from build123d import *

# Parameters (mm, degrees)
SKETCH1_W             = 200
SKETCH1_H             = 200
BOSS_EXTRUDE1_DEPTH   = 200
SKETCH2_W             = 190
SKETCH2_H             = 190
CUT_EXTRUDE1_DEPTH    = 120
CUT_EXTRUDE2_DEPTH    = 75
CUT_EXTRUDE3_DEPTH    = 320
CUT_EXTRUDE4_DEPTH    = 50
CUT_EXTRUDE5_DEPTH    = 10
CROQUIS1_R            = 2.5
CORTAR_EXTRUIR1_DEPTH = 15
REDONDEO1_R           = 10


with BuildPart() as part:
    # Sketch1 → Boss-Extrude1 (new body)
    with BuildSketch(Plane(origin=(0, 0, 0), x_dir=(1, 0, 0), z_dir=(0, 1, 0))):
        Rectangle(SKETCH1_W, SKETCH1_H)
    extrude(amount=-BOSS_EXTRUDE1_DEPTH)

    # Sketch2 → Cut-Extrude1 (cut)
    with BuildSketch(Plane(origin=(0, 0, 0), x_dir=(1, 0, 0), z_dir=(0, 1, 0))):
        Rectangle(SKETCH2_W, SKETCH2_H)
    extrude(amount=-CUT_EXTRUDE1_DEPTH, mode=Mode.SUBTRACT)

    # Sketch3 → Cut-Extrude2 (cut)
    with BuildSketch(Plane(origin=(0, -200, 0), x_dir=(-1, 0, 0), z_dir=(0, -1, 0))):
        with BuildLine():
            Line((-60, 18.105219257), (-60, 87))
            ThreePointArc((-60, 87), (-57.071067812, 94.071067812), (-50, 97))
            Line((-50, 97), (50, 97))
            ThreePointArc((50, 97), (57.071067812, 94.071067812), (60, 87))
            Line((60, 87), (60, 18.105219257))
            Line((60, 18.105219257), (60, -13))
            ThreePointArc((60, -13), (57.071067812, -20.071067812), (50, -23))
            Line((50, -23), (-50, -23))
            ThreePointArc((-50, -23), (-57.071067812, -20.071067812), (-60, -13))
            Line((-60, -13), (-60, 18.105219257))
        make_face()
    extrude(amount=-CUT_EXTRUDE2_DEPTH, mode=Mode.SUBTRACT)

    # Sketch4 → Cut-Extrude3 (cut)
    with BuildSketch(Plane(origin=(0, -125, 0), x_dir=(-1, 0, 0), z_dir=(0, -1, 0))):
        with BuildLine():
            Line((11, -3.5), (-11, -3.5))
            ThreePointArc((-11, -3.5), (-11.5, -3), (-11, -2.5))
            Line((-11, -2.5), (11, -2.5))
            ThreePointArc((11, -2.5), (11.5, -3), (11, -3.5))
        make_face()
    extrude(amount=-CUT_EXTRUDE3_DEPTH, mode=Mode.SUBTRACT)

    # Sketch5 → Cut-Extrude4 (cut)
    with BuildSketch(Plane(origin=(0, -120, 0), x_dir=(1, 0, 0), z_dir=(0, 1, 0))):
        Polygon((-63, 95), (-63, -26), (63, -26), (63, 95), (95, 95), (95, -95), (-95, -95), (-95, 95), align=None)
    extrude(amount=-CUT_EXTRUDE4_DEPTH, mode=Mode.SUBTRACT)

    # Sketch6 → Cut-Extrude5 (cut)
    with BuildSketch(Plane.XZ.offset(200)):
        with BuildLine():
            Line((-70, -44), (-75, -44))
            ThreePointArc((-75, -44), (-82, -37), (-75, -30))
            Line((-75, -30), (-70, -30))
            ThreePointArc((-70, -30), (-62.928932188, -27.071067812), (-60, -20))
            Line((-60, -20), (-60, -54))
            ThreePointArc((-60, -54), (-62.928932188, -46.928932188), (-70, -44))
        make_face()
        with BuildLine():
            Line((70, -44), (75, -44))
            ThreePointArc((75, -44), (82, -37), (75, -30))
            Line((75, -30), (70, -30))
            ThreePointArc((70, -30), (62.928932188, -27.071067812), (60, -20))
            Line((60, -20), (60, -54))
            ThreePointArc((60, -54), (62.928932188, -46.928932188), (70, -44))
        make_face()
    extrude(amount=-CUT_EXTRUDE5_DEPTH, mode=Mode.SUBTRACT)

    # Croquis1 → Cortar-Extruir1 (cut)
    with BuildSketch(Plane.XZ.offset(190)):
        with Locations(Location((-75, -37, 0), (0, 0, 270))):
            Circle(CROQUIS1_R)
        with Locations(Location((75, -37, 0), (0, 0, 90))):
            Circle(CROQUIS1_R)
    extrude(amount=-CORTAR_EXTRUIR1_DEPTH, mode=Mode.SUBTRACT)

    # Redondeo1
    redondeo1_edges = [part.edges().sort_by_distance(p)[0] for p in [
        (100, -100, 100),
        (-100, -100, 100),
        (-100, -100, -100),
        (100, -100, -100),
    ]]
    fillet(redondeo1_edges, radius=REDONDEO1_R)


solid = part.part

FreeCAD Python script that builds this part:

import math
import FreeCAD as App
import Part
import Sketcher


def edges_at(feature, points):
    """Names of the edges that pass closest to the given points."""
    edges = feature.Shape.Edges
    near = lambda p: min(range(len(edges)), key=lambda i: edges[i].distToShape(Part.Vertex(*p))[0])
    return sorted({f"Edge{near(p) + 1}" for p in points})

doc = App.newDocument("Part")
body = doc.addObject("PartDesign::Body", "Body")

# Sketch on XZ plane
sketch1 = body.newObject("Sketcher::SketchObject", "Sketch")
sketch1.AttachmentSupport = (doc.getObject("XZ_Plane"), [""])
sketch1.MapMode = "FlatFace"
sketch1.addGeometry(Part.LineSegment(App.Vector(-100, -100, 0), App.Vector(-100, 100, 0)), False)
sketch1.addGeometry(Part.LineSegment(App.Vector(-100, 100, 0), App.Vector(100, 100, 0)), False)
sketch1.addGeometry(Part.LineSegment(App.Vector(100, 100, 0), App.Vector(100, -100, 0)), False)
sketch1.addGeometry(Part.LineSegment(App.Vector(100, -100, 0), App.Vector(-100, -100, 0)), False)
sketch1.addConstraint(Sketcher.Constraint("Coincident", 0, 2, 1, 1))
sketch1.addConstraint(Sketcher.Constraint("Coincident", 1, 2, 2, 1))
sketch1.addConstraint(Sketcher.Constraint("Coincident", 2, 2, 3, 1))
sketch1.addConstraint(Sketcher.Constraint("Coincident", 3, 2, 0, 1))
sketch1.addConstraint(Sketcher.Constraint("Vertical", 0))
sketch1.addConstraint(Sketcher.Constraint("Horizontal", 1))
sketch1.addConstraint(Sketcher.Constraint("Vertical", 2))
sketch1.addConstraint(Sketcher.Constraint("Horizontal", 3))
sketch1.addConstraint(Sketcher.Constraint("Symmetric", 0, 2, 2, 2, -1, 1))
sketch1.addConstraint(Sketcher.Constraint("Equal", 3, 0))
sketch1.addConstraint(Sketcher.Constraint("DistanceX", 1, 1, 1, 2, 200.0))
pad1 = body.newObject("PartDesign::Pad", "Pad")
pad1.Profile = sketch1
pad1.Length = 200

# Sketch on XZ plane
sketch2 = body.newObject("Sketcher::SketchObject", "Sketch001")
sketch2.AttachmentSupport = (doc.getObject("XZ_Plane"), [""])
sketch2.MapMode = "FlatFace"
sketch2.addGeometry(Part.LineSegment(App.Vector(-95, -95, 0), App.Vector(-95, 95, 0)), False)
sketch2.addGeometry(Part.LineSegment(App.Vector(-95, 95, 0), App.Vector(95, 95, 0)), False)
sketch2.addGeometry(Part.LineSegment(App.Vector(95, 95, 0), App.Vector(95, -95, 0)), False)
sketch2.addGeometry(Part.LineSegment(App.Vector(95, -95, 0), App.Vector(-95, -95, 0)), False)
sketch2.addConstraint(Sketcher.Constraint("Coincident", 0, 2, 1, 1))
sketch2.addConstraint(Sketcher.Constraint("Coincident", 1, 2, 2, 1))
sketch2.addConstraint(Sketcher.Constraint("Coincident", 2, 2, 3, 1))
sketch2.addConstraint(Sketcher.Constraint("Coincident", 3, 2, 0, 1))
sketch2.addConstraint(Sketcher.Constraint("Vertical", 0))
sketch2.addConstraint(Sketcher.Constraint("Horizontal", 1))
sketch2.addConstraint(Sketcher.Constraint("Vertical", 2))
sketch2.addConstraint(Sketcher.Constraint("Horizontal", 3))
sketch2.addConstraint(Sketcher.Constraint("Symmetric", 0, 2, 2, 2, -1, 1))
sketch2.addConstraint(Sketcher.Constraint("Equal", 3, 0))
sketch2.addConstraint(Sketcher.Constraint("DistanceX", 1, 1, 1, 2, 190.0))
pocket1 = body.newObject("PartDesign::Pocket", "Pocket")
pocket1.Profile = sketch2
pocket1.Length = 120
pocket1.Reversed = True

# Sketch on XZ plane
sketch3 = body.newObject("Sketcher::SketchObject", "Sketch002")
sketch3.AttachmentSupport = (doc.getObject("XZ_Plane"), [""])
sketch3.MapMode = "FlatFace"
sketch3.AttachmentOffset = App.Placement(App.Vector(0, 0, 200), App.Rotation())
sketch3.addGeometry(Part.ArcOfCircle(Part.Circle(App.Vector(50, -87, 0), App.Vector(0, 0, 1), 10), math.radians(-90), math.radians(0)), False)
sketch3.addGeometry(Part.LineSegment(App.Vector(60, -87, 0), App.Vector(60, 13, 0)), False)
sketch3.addGeometry(Part.ArcOfCircle(Part.Circle(App.Vector(50, 13, 0), App.Vector(0, 0, 1), 10), math.radians(0), math.radians(90)), False)
sketch3.addGeometry(Part.LineSegment(App.Vector(50, 23, 0), App.Vector(-50, 23, 0)), False)
sketch3.addGeometry(Part.ArcOfCircle(Part.Circle(App.Vector(-50, 13, 0), App.Vector(0, 0, 1), 10), math.radians(90), math.radians(180)), False)
sketch3.addGeometry(Part.LineSegment(App.Vector(-60, 13, 0), App.Vector(-60, -87, 0)), False)
sketch3.addGeometry(Part.ArcOfCircle(Part.Circle(App.Vector(-50, -87, 0), App.Vector(0, 0, 1), 10), math.radians(180), math.radians(270)), False)
sketch3.addGeometry(Part.LineSegment(App.Vector(-50, -97, 0), App.Vector(50, -97, 0)), False)
sketch3.addConstraint(Sketcher.Constraint("Tangent", 0, 2, 1, 1))
sketch3.addConstraint(Sketcher.Constraint("Tangent", 1, 2, 2, 1))
sketch3.addConstraint(Sketcher.Constraint("Tangent", 2, 2, 3, 1))
sketch3.addConstraint(Sketcher.Constraint("Tangent", 3, 2, 4, 1))
sketch3.addConstraint(Sketcher.Constraint("Tangent", 4, 2, 5, 1))
sketch3.addConstraint(Sketcher.Constraint("Tangent", 5, 2, 6, 1))
sketch3.addConstraint(Sketcher.Constraint("Tangent", 6, 2, 7, 1))
sketch3.addConstraint(Sketcher.Constraint("Tangent", 7, 2, 0, 1))
sketch3.addConstraint(Sketcher.Constraint("Vertical", 1))
sketch3.addConstraint(Sketcher.Constraint("Horizontal", 3))
sketch3.addConstraint(Sketcher.Constraint("Vertical", 5))
sketch3.addConstraint(Sketcher.Constraint("Horizontal", 7))
sketch3.addConstraint(Sketcher.Constraint("Equal", 0, 2))
sketch3.addConstraint(Sketcher.Constraint("Equal", 2, 4))
sketch3.addConstraint(Sketcher.Constraint("Equal", 4, 6))
sketch3.addConstraint(Sketcher.Constraint("Equal", 7, 1))
sketch3.addConstraint(Sketcher.Constraint("Radius", 0, 10.0))
sketch3.addConstraint(Sketcher.Constraint("DistanceX", 3, 2, 3, 1, 100.0))
sketch3.addConstraint(Sketcher.Constraint("DistanceX", -1, 1, 0, 3, 50.0))
sketch3.addConstraint(Sketcher.Constraint("DistanceY", 0, 3, -1, 1, 87.0))
pocket2 = body.newObject("PartDesign::Pocket", "Pocket001")
pocket2.Profile = sketch3
pocket2.Length = 75

# Sketch on XZ plane
sketch4 = body.newObject("Sketcher::SketchObject", "Sketch003")
sketch4.AttachmentSupport = (doc.getObject("XZ_Plane"), [""])
sketch4.MapMode = "FlatFace"
sketch4.AttachmentOffset = App.Placement(App.Vector(0, 0, 125), App.Rotation())
sketch4.addGeometry(Part.LineSegment(App.Vector(11, 3.5, 0), App.Vector(-11, 3.5, 0)), False)
sketch4.addGeometry(Part.ArcOfCircle(Part.Circle(App.Vector(-11, 3, 0), App.Vector(0, 0, 1), 0.5), math.radians(90), math.radians(270)), False)
sketch4.addGeometry(Part.LineSegment(App.Vector(-11, 2.5, 0), App.Vector(11, 2.5, 0)), False)
sketch4.addGeometry(Part.ArcOfCircle(Part.Circle(App.Vector(11, 3, 0), App.Vector(0, 0, 1), 0.5), math.radians(-90), math.radians(90)), False)
sketch4.addConstraint(Sketcher.Constraint("Tangent", 0, 2, 1, 1))
sketch4.addConstraint(Sketcher.Constraint("Tangent", 1, 2, 2, 1))
sketch4.addConstraint(Sketcher.Constraint("Tangent", 2, 2, 3, 1))
sketch4.addConstraint(Sketcher.Constraint("Tangent", 3, 2, 0, 1))
sketch4.addConstraint(Sketcher.Constraint("Horizontal", 0))
sketch4.addConstraint(Sketcher.Constraint("Horizontal", 2))
sketch4.addConstraint(Sketcher.Constraint("Radius", 1, 0.5))
sketch4.addConstraint(Sketcher.Constraint("DistanceX", 0, 2, 0, 1, 22.0))
sketch4.addConstraint(Sketcher.Constraint("DistanceX", 1, 3, -1, 1, 11.0))
sketch4.addConstraint(Sketcher.Constraint("DistanceY", -1, 1, 1, 3, 3.0))
pocket3 = body.newObject("PartDesign::Pocket", "Pocket002")
pocket3.Profile = sketch4
pocket3.Length = 320

# Sketch on XZ plane
sketch5 = body.newObject("Sketcher::SketchObject", "Sketch004")
sketch5.AttachmentSupport = (doc.getObject("XZ_Plane"), [""])
sketch5.MapMode = "FlatFace"
sketch5.AttachmentOffset = App.Placement(App.Vector(0, 0, 120), App.Rotation())
sketch5.addGeometry(Part.LineSegment(App.Vector(-63, 26, 0), App.Vector(-63, -95, 0)), False)
sketch5.addGeometry(Part.LineSegment(App.Vector(-63, -95, 0), App.Vector(-95, -95, 0)), False)
sketch5.addGeometry(Part.LineSegment(App.Vector(-95, -95, 0), App.Vector(-95, 95, 0)), False)
sketch5.addGeometry(Part.LineSegment(App.Vector(-95, 95, 0), App.Vector(95, 95, 0)), False)
sketch5.addGeometry(Part.LineSegment(App.Vector(95, 95, 0), App.Vector(95, -95, 0)), False)
sketch5.addGeometry(Part.LineSegment(App.Vector(95, -95, 0), App.Vector(63, -95, 0)), False)
sketch5.addGeometry(Part.LineSegment(App.Vector(63, -95, 0), App.Vector(63, 26, 0)), False)
sketch5.addGeometry(Part.LineSegment(App.Vector(63, 26, 0), App.Vector(-63, 26, 0)), False)
sketch5.addConstraint(Sketcher.Constraint("Coincident", 0, 2, 1, 1))
sketch5.addConstraint(Sketcher.Constraint("Coincident", 1, 2, 2, 1))
sketch5.addConstraint(Sketcher.Constraint("Coincident", 2, 2, 3, 1))
sketch5.addConstraint(Sketcher.Constraint("Coincident", 3, 2, 4, 1))
sketch5.addConstraint(Sketcher.Constraint("Coincident", 4, 2, 5, 1))
sketch5.addConstraint(Sketcher.Constraint("Coincident", 5, 2, 6, 1))
sketch5.addConstraint(Sketcher.Constraint("Coincident", 6, 2, 7, 1))
sketch5.addConstraint(Sketcher.Constraint("Coincident", 7, 2, 0, 1))
sketch5.addConstraint(Sketcher.Constraint("Vertical", 0))
sketch5.addConstraint(Sketcher.Constraint("Horizontal", 1))
sketch5.addConstraint(Sketcher.Constraint("Vertical", 2))
sketch5.addConstraint(Sketcher.Constraint("Horizontal", 3))
sketch5.addConstraint(Sketcher.Constraint("Vertical", 4))
sketch5.addConstraint(Sketcher.Constraint("Horizontal", 5))
sketch5.addConstraint(Sketcher.Constraint("Vertical", 6))
sketch5.addConstraint(Sketcher.Constraint("Horizontal", 7))
sketch5.addConstraint(Sketcher.Constraint("Symmetric", 1, 2, 3, 2, -1, 1))
sketch5.addConstraint(Sketcher.Constraint("Symmetric", 0, 2, 5, 2, -2))
sketch5.addConstraint(Sketcher.Constraint("Equal", 3, 2))
sketch5.addConstraint(Sketcher.Constraint("DistanceX", 1, 2, 1, 1, 32.0))
sketch5.addConstraint(Sketcher.Constraint("DistanceX", 3, 1, 3, 2, 190.0))
sketch5.addConstraint(Sketcher.Constraint("DistanceY", 0, 2, 0, 1, 121.0))
pocket4 = body.newObject("PartDesign::Pocket", "Pocket003")
pocket4.Profile = sketch5
pocket4.Length = 50
pocket4.Reversed = True

# Sketch on XZ plane
sketch6 = body.newObject("Sketcher::SketchObject", "Sketch005")
sketch6.AttachmentSupport = (doc.getObject("XZ_Plane"), [""])
sketch6.MapMode = "FlatFace"
sketch6.AttachmentOffset = App.Placement(App.Vector(0, 0, 200), App.Rotation())
sketch6.addGeometry(Part.LineSegment(App.Vector(-75, -44, 0), App.Vector(-70, -44, 0)), False)
sketch6.addGeometry(Part.ArcOfCircle(Part.Circle(App.Vector(-70, -54, 0), App.Vector(0, 0, 1), 10), math.radians(0), math.radians(90)), False)
sketch6.addGeometry(Part.LineSegment(App.Vector(-60, -54, 0), App.Vector(-60, -20, 0)), False)
sketch6.addGeometry(Part.ArcOfCircle(Part.Circle(App.Vector(-70, -20, 0), App.Vector(0, 0, 1), 10), math.radians(-90), math.radians(0)), False)
sketch6.addGeometry(Part.LineSegment(App.Vector(-70, -30, 0), App.Vector(-75, -30, 0)), False)
sketch6.addGeometry(Part.ArcOfCircle(Part.Circle(App.Vector(-75, -37, 0), App.Vector(0, 0, 1), 7), math.radians(90), math.radians(270)), False)
sketch6.addGeometry(Part.LineSegment(App.Vector(70, -44, 0), App.Vector(75, -44, 0)), False)
sketch6.addGeometry(Part.ArcOfCircle(Part.Circle(App.Vector(75, -37, 0), App.Vector(0, 0, 1), 7), math.radians(-90), math.radians(90)), False)
sketch6.addGeometry(Part.LineSegment(App.Vector(75, -30, 0), App.Vector(70, -30, 0)), False)
sketch6.addGeometry(Part.ArcOfCircle(Part.Circle(App.Vector(70, -20, 0), App.Vector(0, 0, 1), 10), math.radians(180), math.radians(270)), False)
sketch6.addGeometry(Part.LineSegment(App.Vector(60, -20, 0), App.Vector(60, -54, 0)), False)
sketch6.addGeometry(Part.ArcOfCircle(Part.Circle(App.Vector(70, -54, 0), App.Vector(0, 0, 1), 10), math.radians(90), math.radians(180)), False)
sketch6.addConstraint(Sketcher.Constraint("Tangent", 0, 2, 1, 2))
sketch6.addConstraint(Sketcher.Constraint("Tangent", 1, 1, 2, 1))
sketch6.addConstraint(Sketcher.Constraint("Tangent", 2, 2, 3, 2))
sketch6.addConstraint(Sketcher.Constraint("Tangent", 3, 1, 4, 1))
sketch6.addConstraint(Sketcher.Constraint("Tangent", 4, 2, 5, 1))
sketch6.addConstraint(Sketcher.Constraint("Tangent", 5, 2, 0, 1))
sketch6.addConstraint(Sketcher.Constraint("Tangent", 6, 2, 7, 1))
sketch6.addConstraint(Sketcher.Constraint("Tangent", 7, 2, 8, 1))
sketch6.addConstraint(Sketcher.Constraint("Tangent", 8, 2, 9, 2))
sketch6.addConstraint(Sketcher.Constraint("Tangent", 9, 1, 10, 1))
sketch6.addConstraint(Sketcher.Constraint("Tangent", 10, 2, 11, 2))
sketch6.addConstraint(Sketcher.Constraint("Tangent", 11, 1, 6, 1))
sketch6.addConstraint(Sketcher.Constraint("Horizontal", 0))
sketch6.addConstraint(Sketcher.Constraint("Vertical", 2))
sketch6.addConstraint(Sketcher.Constraint("Horizontal", 4))
sketch6.addConstraint(Sketcher.Constraint("Horizontal", 6))
sketch6.addConstraint(Sketcher.Constraint("Horizontal", 8))
sketch6.addConstraint(Sketcher.Constraint("Vertical", 10))
sketch6.addConstraint(Sketcher.Constraint("Equal", 1, 3))
sketch6.addConstraint(Sketcher.Constraint("Equal", 5, 7))
sketch6.addConstraint(Sketcher.Constraint("Equal", 3, 9))
sketch6.addConstraint(Sketcher.Constraint("Equal", 9, 11))
sketch6.addConstraint(Sketcher.Constraint("Symmetric", 5, 3, 7, 3, -2))
sketch6.addConstraint(Sketcher.Constraint("Equal", 4, 6))
sketch6.addConstraint(Sketcher.Constraint("Radius", 1, 10.0))
sketch6.addConstraint(Sketcher.Constraint("Radius", 5, 7.0))
sketch6.addConstraint(Sketcher.Constraint("DistanceX", 0, 1, 0, 2, 5.0))
sketch6.addConstraint(Sketcher.Constraint("DistanceX", 1, 3, -1, 1, 70.0))
sketch6.addConstraint(Sketcher.Constraint("DistanceY", 1, 3, -1, 1, 54.0))
pocket5 = body.newObject("PartDesign::Pocket", "Pocket004")
pocket5.Profile = sketch6
pocket5.Length = 10

# Sketch on XZ plane
sketch7 = body.newObject("Sketcher::SketchObject", "Sketch006")
sketch7.AttachmentSupport = (doc.getObject("XZ_Plane"), [""])
sketch7.MapMode = "FlatFace"
sketch7.AttachmentOffset = App.Placement(App.Vector(0, 0, 190), App.Rotation())
sketch7.addGeometry(Part.Circle(App.Vector(-75, -37, 0), App.Vector(0, 0, 1), 2.5), False)
sketch7.addGeometry(Part.Circle(App.Vector(75, -37, 0), App.Vector(0, 0, 1), 2.5), False)
sketch7.addConstraint(Sketcher.Constraint("Equal", 0, 1))
sketch7.addConstraint(Sketcher.Constraint("Symmetric", 0, 3, 1, 3, -2))
sketch7.addConstraint(Sketcher.Constraint("Diameter", 0, 5.0))
sketch7.addConstraint(Sketcher.Constraint("DistanceX", 0, 3, -1, 1, 75.0))
sketch7.addConstraint(Sketcher.Constraint("DistanceY", 0, 3, -1, 1, 37.0))
pocket6 = body.newObject("PartDesign::Pocket", "Pocket005")
pocket6.Profile = sketch7
pocket6.Length = 15
doc.recompute()

fillet = body.newObject("PartDesign::Fillet", "Fillet")
fillet.Base = (pocket6, edges_at(pocket6, [
    (100, -100, 100),
    (-100, -100, 100),
    (-100, -100, -100),
    (100, -100, -100),
]))
fillet.Radius = 10

doc.recompute()
